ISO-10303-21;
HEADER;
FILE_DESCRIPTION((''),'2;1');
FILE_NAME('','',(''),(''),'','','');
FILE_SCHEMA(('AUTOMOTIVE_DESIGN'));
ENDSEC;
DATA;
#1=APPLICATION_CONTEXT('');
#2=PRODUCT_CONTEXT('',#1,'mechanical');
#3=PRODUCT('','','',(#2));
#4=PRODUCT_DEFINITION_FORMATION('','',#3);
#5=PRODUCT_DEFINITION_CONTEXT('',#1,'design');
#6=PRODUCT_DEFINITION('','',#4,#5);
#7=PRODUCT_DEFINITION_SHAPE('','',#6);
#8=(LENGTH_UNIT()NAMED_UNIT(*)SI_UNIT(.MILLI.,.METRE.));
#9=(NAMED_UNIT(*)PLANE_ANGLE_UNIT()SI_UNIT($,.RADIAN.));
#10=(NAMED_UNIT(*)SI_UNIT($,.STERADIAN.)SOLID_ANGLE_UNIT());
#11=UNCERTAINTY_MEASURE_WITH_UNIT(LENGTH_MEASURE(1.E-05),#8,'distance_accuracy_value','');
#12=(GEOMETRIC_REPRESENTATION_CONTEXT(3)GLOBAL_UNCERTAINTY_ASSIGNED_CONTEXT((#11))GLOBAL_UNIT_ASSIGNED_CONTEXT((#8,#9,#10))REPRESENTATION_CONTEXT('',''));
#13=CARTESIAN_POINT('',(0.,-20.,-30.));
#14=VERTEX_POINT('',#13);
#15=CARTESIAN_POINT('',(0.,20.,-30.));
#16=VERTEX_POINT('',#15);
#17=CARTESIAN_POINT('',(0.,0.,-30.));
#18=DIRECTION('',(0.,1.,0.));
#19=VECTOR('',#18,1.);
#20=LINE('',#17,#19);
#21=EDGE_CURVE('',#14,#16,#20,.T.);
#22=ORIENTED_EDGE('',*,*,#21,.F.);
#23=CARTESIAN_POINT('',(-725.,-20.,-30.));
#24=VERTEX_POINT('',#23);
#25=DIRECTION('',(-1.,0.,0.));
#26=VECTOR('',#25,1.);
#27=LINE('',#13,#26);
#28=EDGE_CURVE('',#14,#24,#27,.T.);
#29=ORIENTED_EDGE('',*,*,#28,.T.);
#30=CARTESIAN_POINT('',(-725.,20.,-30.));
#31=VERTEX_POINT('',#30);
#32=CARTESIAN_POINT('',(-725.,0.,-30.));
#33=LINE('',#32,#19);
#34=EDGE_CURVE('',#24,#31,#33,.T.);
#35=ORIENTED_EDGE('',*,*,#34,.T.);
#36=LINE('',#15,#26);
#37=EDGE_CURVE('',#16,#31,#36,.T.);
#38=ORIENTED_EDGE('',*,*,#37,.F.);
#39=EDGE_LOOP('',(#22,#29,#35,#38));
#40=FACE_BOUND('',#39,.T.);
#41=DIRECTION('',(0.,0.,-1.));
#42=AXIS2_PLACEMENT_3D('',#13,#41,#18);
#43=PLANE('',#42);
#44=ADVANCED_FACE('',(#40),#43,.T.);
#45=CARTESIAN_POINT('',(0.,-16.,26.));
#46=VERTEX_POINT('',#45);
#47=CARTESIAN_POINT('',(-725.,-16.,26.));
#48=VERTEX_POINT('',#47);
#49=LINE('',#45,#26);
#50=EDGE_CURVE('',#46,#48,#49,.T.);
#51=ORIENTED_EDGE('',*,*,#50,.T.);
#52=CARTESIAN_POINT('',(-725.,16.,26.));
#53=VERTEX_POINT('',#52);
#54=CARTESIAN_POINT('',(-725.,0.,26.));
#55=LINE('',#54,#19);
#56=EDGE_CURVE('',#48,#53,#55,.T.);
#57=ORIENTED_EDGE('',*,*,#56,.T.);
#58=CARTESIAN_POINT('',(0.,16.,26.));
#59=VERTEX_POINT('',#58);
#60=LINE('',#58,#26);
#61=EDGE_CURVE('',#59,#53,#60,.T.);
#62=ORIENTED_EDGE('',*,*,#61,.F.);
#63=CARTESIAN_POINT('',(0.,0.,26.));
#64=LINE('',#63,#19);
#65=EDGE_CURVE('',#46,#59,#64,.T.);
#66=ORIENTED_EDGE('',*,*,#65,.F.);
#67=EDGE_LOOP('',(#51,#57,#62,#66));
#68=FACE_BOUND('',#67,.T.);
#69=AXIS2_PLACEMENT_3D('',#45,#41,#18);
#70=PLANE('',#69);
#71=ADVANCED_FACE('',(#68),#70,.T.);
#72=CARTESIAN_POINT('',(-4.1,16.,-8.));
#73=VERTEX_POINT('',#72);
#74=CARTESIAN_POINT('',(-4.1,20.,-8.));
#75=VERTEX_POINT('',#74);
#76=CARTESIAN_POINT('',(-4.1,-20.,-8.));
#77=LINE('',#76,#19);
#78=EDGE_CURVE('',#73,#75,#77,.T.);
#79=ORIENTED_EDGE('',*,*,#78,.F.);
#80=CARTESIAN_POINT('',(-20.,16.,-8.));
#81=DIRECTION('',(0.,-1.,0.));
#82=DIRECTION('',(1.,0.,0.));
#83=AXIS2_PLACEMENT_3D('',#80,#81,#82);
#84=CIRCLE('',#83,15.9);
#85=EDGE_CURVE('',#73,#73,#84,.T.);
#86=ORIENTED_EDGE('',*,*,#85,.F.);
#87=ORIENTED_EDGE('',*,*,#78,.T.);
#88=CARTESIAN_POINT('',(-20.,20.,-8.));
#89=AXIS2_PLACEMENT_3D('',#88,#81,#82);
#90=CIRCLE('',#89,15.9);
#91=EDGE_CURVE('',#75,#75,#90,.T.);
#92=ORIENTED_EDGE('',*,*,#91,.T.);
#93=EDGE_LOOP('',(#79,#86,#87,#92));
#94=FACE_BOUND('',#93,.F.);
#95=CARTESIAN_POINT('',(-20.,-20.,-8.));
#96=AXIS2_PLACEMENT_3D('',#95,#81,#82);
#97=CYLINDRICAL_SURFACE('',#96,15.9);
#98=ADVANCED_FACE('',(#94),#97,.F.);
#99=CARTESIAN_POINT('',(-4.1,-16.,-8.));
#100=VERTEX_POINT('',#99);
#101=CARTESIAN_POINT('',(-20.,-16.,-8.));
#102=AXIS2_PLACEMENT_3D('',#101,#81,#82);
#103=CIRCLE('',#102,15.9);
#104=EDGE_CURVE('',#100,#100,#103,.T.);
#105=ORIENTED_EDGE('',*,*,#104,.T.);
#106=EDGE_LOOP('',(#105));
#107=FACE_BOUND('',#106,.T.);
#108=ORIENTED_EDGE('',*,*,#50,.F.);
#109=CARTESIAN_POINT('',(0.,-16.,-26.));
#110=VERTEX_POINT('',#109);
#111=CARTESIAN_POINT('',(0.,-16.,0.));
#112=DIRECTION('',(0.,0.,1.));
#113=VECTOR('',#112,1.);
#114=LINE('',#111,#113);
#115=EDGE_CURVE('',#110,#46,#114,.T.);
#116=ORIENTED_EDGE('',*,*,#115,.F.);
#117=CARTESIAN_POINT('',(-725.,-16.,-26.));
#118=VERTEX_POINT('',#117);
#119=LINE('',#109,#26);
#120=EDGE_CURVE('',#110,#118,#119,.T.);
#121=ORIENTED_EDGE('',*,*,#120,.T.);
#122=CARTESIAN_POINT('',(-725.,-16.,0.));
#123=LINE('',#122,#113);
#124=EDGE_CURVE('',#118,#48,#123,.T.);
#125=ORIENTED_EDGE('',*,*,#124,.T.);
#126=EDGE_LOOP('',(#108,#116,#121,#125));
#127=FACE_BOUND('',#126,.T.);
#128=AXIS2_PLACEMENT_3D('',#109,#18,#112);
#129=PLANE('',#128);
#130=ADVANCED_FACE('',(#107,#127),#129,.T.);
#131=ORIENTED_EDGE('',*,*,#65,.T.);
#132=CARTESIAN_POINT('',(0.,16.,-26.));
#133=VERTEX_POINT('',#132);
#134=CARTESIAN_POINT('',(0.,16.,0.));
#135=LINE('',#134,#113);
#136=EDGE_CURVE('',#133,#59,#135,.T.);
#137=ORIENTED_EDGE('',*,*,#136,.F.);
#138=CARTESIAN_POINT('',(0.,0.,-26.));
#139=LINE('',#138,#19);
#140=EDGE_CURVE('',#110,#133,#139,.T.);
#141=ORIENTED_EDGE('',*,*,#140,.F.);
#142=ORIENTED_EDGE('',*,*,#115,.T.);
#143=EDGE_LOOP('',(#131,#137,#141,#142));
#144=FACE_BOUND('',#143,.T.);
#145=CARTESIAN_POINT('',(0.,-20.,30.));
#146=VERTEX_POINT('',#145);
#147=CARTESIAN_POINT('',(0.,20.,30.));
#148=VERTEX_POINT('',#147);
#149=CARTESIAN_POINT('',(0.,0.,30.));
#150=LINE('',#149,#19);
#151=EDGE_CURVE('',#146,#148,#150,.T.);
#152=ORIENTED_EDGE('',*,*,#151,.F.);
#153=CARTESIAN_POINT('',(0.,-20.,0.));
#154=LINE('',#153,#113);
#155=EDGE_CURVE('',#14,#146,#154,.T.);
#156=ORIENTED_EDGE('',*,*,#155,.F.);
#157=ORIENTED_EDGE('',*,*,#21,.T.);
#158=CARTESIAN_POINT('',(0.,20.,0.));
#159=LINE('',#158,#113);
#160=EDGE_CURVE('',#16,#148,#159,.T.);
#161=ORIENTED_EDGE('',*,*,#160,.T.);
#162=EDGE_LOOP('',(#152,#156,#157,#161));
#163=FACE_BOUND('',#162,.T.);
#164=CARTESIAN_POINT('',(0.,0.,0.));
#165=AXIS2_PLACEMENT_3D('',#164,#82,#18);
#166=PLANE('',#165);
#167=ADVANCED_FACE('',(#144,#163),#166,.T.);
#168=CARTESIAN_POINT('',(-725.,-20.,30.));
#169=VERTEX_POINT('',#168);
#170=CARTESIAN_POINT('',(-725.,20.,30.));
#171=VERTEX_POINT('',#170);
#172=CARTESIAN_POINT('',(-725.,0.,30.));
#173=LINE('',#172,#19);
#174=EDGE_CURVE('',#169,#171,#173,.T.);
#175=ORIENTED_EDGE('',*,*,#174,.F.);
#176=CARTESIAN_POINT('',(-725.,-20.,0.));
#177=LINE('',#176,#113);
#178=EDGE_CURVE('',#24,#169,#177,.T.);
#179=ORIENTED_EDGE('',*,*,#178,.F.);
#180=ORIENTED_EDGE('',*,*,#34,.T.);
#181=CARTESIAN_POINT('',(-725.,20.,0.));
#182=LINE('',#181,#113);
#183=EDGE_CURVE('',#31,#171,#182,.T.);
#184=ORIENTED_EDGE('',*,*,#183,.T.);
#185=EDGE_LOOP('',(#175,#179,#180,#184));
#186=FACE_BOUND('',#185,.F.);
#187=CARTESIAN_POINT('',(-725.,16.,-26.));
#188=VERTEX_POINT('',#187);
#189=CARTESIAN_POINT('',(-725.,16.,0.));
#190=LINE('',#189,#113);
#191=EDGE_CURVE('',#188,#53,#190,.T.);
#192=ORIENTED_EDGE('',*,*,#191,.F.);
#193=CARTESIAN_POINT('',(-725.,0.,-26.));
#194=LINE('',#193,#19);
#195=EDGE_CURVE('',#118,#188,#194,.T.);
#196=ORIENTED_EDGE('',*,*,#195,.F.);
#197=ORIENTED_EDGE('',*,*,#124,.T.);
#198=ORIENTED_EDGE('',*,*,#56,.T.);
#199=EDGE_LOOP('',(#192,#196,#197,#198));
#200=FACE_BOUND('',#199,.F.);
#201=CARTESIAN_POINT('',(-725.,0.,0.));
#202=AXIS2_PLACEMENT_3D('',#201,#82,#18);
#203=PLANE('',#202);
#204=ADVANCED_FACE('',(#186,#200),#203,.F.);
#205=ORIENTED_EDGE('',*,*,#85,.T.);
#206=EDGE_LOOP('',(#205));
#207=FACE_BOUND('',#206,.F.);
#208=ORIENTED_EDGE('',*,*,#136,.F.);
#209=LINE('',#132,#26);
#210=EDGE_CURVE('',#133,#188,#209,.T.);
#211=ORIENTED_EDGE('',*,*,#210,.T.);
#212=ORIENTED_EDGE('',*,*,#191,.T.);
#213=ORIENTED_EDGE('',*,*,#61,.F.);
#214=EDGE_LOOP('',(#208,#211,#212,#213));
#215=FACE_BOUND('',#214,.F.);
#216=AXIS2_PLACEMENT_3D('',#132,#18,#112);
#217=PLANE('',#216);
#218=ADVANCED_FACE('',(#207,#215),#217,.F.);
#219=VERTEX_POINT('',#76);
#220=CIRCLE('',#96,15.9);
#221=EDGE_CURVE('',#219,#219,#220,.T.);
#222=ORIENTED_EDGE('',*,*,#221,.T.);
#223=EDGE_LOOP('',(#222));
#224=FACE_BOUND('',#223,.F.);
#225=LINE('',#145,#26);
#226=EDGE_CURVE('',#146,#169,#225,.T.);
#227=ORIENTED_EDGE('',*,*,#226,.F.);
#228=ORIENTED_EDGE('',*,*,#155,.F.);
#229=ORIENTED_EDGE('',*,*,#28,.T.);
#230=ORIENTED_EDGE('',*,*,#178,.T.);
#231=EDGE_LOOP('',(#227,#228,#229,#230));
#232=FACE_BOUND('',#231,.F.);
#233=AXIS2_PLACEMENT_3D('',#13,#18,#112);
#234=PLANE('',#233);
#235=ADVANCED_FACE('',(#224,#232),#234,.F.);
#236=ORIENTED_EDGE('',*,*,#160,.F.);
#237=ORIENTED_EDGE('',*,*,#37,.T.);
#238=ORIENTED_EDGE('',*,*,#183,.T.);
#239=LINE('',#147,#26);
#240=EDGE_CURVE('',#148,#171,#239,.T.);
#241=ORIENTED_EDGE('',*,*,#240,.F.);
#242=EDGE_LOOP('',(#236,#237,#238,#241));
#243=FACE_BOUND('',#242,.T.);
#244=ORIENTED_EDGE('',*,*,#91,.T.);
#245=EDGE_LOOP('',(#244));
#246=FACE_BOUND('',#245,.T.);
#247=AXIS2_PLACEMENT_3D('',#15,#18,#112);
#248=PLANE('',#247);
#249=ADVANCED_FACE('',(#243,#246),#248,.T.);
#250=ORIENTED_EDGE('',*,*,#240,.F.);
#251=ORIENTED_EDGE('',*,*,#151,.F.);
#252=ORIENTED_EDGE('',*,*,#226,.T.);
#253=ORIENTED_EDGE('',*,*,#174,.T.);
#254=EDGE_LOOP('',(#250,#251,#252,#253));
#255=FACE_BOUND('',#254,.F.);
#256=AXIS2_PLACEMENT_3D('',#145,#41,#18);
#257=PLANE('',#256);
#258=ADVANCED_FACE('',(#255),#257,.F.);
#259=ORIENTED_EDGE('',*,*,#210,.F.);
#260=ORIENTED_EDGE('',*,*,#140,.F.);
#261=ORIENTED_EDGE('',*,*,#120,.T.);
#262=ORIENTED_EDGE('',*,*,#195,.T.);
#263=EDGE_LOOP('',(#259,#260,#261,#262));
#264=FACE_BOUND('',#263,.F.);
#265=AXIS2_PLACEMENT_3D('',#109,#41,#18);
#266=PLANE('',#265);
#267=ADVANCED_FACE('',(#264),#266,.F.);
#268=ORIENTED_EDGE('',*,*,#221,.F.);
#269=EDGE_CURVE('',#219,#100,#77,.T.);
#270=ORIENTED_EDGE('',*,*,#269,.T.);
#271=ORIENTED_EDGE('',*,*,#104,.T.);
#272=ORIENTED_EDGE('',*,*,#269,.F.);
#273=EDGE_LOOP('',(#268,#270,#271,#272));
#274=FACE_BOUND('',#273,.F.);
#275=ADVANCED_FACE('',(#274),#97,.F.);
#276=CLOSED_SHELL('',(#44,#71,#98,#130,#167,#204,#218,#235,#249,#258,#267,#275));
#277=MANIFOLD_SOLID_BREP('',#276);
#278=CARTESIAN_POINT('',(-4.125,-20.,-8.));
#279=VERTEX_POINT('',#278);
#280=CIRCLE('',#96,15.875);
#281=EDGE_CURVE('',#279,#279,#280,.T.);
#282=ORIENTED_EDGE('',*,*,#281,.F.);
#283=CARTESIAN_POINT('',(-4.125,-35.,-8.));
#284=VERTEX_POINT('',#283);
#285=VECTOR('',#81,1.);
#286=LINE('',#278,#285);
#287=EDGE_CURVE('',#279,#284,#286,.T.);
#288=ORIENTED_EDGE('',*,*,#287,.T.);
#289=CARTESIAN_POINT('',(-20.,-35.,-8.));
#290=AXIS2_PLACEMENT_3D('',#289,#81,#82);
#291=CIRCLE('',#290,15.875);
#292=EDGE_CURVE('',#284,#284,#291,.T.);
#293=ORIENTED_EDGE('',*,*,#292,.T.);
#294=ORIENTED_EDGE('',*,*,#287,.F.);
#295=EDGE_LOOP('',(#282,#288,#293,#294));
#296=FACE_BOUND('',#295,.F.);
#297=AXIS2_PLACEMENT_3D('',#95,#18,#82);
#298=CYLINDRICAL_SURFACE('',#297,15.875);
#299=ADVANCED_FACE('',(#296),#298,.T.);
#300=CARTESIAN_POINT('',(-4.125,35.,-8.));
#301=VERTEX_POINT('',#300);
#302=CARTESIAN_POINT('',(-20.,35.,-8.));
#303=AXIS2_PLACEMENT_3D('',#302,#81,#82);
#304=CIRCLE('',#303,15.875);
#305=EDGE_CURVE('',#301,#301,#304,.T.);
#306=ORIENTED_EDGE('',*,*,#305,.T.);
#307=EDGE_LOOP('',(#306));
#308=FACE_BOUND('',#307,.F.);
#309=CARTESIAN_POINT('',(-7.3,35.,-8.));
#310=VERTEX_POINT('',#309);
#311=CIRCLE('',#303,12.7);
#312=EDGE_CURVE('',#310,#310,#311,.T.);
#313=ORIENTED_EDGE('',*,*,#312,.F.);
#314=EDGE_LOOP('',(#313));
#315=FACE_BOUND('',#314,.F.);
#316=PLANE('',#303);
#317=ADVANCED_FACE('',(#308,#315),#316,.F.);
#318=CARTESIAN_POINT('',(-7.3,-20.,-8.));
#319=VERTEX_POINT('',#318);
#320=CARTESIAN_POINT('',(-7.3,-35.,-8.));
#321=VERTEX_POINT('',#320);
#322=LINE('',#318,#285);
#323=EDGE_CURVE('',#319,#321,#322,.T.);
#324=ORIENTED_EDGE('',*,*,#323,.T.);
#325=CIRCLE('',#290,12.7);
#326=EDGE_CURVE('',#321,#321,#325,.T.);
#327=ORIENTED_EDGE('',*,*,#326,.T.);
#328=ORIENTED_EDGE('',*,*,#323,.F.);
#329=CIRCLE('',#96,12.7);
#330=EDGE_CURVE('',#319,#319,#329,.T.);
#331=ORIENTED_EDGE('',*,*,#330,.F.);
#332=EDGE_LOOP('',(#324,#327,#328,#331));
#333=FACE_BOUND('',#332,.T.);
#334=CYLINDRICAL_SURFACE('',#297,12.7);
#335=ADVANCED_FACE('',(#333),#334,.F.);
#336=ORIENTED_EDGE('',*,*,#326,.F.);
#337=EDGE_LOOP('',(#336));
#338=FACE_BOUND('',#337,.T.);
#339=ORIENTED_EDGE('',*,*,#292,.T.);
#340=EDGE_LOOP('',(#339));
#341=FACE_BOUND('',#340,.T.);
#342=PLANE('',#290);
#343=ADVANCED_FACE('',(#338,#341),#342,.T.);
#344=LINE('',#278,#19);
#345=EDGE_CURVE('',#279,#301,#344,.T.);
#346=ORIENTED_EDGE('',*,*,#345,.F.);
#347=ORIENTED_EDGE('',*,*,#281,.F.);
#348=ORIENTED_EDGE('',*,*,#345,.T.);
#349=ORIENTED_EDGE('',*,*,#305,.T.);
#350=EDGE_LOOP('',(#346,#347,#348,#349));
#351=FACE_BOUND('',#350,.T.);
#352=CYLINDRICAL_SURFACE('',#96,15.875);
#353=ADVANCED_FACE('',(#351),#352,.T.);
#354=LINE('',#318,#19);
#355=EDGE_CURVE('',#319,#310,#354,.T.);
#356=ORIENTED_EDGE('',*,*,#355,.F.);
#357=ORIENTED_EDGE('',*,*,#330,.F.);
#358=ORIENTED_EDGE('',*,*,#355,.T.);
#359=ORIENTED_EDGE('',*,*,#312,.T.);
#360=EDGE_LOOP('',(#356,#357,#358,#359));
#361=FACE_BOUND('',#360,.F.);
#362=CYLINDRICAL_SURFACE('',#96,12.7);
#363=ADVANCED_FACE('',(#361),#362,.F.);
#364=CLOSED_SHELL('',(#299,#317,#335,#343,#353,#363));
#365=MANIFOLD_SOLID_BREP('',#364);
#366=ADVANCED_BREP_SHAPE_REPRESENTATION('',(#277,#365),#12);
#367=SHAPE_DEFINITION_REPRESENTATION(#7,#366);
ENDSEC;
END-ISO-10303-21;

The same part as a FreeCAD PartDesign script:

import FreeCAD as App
import Part
import Sketcher

V = App.Vector


def add_polygon(sketch, points):
    """Adds a closed chain of lines whose ends are joined by coincident constraints."""
    first, n = sketch.GeometryCount, len(points)
    for a, b in zip(points, points[1:] + points[:1]):
        sketch.addGeometry(Part.LineSegment(App.Vector(*a, 0), App.Vector(*b, 0)), False)
    for i in range(n):
        sketch.addConstraint(Sketcher.Constraint("Coincident", first + i, 2, first + (i + 1) % n, 1))

doc = App.newDocument("Part")
body = doc.addObject("PartDesign::Body", "Body")

sketch1 = body.newObject("Sketcher::SketchObject", "Sketch")
sketch1.AttachmentSupport = (doc.getObject("YZ_Plane"), [""])
sketch1.MapMode = "FlatFace"
add_polygon(sketch1, [(-20, 30), (-20, -30), (20, -30), (20, 30)])
add_polygon(sketch1, [(16, -26), (-16, -26), (-16, 26), (16, 26)])
sketch1.addConstraint([
    Sketcher.Constraint("Vertical", 0),
    Sketcher.Constraint("Horizontal", 1),
    Sketcher.Constraint("Vertical", 2),
    Sketcher.Constraint("Horizontal", 3),
    Sketcher.Constraint("Horizontal", 4),
    Sketcher.Constraint("Vertical", 5),
    Sketcher.Constraint("Horizontal", 6),
    Sketcher.Constraint("Vertical", 7),
    Sketcher.Constraint("Symmetric", 0, 2, 2, 2, -1, 1),
    Sketcher.Constraint("Symmetric", 4, 2, 6, 2, -1, 1),
    Sketcher.Constraint("DistanceX", 1, 1, 1, 2, 40.0),
    Sketcher.Constraint("DistanceX", 4, 2, 4, 1, 32.0),
    Sketcher.Constraint("DistanceY", 0, 2, 0, 1, 60.0),
    Sketcher.Constraint("DistanceY", 5, 1, 5, 2, 52.0),
])
pad1 = body.newObject("PartDesign::Pad", "Pad")
pad1.Profile = sketch1
pad1.Length = 725
pad1.Reversed = True

sketch2 = body.newObject("Sketcher::SketchObject", "Sketch001")
sketch2.AttachmentSupport = (doc.getObject("XZ_Plane"), [""])
sketch2.MapMode = "FlatFace"
sketch2.AttachmentOffset = App.Placement(V(0, 0, 20), App.Rotation())
sketch2.addGeometry(Part.Circle(V(-20, -8, 0), V(0, 0, 1), 16), False)
sketch2.addConstraint([
    Sketcher.Constraint("Diameter", 0, 31.8),
    Sketcher.Constraint("DistanceX", 0, 3, -1, 1, 20.0),
    Sketcher.Constraint("DistanceY", 0, 3, -1, 1, 8.0),
])
pocket1 = body.newObject("PartDesign::Pocket", "Pocket")
pocket1.Profile = sketch2
pocket1.Length = 40
body2 = doc.addObject("PartDesign::Body", "Body001")

sketch3 = body2.newObject("Sketcher::SketchObject", "Sketch002")
sketch3.AttachmentSupport = (doc.getObject("XZ_Plane001"), [""])
sketch3.MapMode = "FlatFace"
sketch3.AttachmentOffset = App.Placement(V(0, 0, 20), App.Rotation())
sketch3.addGeometry([
    Part.Circle(V(-20, -8, 0), V(0, 0, 1), 16),
    Part.Circle(V(-20, -8, 0), V(0, 0, 1), 13),
], False)
sketch3.addConstraint([
    Sketcher.Constraint("Coincident", 1, 3, 0, 3),
    Sketcher.Constraint("Diameter", 1, 25.4),
    Sketcher.Constraint("Diameter", 0, 31.75),
    Sketcher.Constraint("DistanceX", 0, 3, -1, 1, 20.0),
    Sketcher.Constraint("DistanceY", 0, 3, -1, 1, 8.0),
])
pad2 = body2.newObject("PartDesign::Pad", "Pad001")
pad2.Profile = sketch3
pad2.Length = 55
pad2.Reversed = True

sketch4 = body2.newObject("Sketcher::SketchObject", "Sketch003")
sketch4.AttachmentSupport = (doc.getObject("XZ_Plane001"), [""])
sketch4.MapMode = "FlatFace"
sketch4.AttachmentOffset = App.Placement(V(0, 0, 20), App.Rotation())
sketch4.addGeometry([
    Part.Circle(V(-20, -8, 0), V(0, 0, 1), 16),
    Part.Circle(V(-20, -8, 0), V(0, 0, 1), 13),
], False)
sketch4.addConstraint([
    Sketcher.Constraint("Coincident", 1, 3, 0, 3),
    Sketcher.Constraint("Diameter", 1, 25.4),
    Sketcher.Constraint("Diameter", 0, 31.75),
    Sketcher.Constraint("DistanceX", 0, 3, -1, 1, 20.0),
    Sketcher.Constraint("DistanceY", 0, 3, -1, 1, 8.0),
])
pad3 = body2.newObject("PartDesign::Pad", "Pad002")
pad3.Profile = sketch4
pad3.Length = 15

doc.recompute()
